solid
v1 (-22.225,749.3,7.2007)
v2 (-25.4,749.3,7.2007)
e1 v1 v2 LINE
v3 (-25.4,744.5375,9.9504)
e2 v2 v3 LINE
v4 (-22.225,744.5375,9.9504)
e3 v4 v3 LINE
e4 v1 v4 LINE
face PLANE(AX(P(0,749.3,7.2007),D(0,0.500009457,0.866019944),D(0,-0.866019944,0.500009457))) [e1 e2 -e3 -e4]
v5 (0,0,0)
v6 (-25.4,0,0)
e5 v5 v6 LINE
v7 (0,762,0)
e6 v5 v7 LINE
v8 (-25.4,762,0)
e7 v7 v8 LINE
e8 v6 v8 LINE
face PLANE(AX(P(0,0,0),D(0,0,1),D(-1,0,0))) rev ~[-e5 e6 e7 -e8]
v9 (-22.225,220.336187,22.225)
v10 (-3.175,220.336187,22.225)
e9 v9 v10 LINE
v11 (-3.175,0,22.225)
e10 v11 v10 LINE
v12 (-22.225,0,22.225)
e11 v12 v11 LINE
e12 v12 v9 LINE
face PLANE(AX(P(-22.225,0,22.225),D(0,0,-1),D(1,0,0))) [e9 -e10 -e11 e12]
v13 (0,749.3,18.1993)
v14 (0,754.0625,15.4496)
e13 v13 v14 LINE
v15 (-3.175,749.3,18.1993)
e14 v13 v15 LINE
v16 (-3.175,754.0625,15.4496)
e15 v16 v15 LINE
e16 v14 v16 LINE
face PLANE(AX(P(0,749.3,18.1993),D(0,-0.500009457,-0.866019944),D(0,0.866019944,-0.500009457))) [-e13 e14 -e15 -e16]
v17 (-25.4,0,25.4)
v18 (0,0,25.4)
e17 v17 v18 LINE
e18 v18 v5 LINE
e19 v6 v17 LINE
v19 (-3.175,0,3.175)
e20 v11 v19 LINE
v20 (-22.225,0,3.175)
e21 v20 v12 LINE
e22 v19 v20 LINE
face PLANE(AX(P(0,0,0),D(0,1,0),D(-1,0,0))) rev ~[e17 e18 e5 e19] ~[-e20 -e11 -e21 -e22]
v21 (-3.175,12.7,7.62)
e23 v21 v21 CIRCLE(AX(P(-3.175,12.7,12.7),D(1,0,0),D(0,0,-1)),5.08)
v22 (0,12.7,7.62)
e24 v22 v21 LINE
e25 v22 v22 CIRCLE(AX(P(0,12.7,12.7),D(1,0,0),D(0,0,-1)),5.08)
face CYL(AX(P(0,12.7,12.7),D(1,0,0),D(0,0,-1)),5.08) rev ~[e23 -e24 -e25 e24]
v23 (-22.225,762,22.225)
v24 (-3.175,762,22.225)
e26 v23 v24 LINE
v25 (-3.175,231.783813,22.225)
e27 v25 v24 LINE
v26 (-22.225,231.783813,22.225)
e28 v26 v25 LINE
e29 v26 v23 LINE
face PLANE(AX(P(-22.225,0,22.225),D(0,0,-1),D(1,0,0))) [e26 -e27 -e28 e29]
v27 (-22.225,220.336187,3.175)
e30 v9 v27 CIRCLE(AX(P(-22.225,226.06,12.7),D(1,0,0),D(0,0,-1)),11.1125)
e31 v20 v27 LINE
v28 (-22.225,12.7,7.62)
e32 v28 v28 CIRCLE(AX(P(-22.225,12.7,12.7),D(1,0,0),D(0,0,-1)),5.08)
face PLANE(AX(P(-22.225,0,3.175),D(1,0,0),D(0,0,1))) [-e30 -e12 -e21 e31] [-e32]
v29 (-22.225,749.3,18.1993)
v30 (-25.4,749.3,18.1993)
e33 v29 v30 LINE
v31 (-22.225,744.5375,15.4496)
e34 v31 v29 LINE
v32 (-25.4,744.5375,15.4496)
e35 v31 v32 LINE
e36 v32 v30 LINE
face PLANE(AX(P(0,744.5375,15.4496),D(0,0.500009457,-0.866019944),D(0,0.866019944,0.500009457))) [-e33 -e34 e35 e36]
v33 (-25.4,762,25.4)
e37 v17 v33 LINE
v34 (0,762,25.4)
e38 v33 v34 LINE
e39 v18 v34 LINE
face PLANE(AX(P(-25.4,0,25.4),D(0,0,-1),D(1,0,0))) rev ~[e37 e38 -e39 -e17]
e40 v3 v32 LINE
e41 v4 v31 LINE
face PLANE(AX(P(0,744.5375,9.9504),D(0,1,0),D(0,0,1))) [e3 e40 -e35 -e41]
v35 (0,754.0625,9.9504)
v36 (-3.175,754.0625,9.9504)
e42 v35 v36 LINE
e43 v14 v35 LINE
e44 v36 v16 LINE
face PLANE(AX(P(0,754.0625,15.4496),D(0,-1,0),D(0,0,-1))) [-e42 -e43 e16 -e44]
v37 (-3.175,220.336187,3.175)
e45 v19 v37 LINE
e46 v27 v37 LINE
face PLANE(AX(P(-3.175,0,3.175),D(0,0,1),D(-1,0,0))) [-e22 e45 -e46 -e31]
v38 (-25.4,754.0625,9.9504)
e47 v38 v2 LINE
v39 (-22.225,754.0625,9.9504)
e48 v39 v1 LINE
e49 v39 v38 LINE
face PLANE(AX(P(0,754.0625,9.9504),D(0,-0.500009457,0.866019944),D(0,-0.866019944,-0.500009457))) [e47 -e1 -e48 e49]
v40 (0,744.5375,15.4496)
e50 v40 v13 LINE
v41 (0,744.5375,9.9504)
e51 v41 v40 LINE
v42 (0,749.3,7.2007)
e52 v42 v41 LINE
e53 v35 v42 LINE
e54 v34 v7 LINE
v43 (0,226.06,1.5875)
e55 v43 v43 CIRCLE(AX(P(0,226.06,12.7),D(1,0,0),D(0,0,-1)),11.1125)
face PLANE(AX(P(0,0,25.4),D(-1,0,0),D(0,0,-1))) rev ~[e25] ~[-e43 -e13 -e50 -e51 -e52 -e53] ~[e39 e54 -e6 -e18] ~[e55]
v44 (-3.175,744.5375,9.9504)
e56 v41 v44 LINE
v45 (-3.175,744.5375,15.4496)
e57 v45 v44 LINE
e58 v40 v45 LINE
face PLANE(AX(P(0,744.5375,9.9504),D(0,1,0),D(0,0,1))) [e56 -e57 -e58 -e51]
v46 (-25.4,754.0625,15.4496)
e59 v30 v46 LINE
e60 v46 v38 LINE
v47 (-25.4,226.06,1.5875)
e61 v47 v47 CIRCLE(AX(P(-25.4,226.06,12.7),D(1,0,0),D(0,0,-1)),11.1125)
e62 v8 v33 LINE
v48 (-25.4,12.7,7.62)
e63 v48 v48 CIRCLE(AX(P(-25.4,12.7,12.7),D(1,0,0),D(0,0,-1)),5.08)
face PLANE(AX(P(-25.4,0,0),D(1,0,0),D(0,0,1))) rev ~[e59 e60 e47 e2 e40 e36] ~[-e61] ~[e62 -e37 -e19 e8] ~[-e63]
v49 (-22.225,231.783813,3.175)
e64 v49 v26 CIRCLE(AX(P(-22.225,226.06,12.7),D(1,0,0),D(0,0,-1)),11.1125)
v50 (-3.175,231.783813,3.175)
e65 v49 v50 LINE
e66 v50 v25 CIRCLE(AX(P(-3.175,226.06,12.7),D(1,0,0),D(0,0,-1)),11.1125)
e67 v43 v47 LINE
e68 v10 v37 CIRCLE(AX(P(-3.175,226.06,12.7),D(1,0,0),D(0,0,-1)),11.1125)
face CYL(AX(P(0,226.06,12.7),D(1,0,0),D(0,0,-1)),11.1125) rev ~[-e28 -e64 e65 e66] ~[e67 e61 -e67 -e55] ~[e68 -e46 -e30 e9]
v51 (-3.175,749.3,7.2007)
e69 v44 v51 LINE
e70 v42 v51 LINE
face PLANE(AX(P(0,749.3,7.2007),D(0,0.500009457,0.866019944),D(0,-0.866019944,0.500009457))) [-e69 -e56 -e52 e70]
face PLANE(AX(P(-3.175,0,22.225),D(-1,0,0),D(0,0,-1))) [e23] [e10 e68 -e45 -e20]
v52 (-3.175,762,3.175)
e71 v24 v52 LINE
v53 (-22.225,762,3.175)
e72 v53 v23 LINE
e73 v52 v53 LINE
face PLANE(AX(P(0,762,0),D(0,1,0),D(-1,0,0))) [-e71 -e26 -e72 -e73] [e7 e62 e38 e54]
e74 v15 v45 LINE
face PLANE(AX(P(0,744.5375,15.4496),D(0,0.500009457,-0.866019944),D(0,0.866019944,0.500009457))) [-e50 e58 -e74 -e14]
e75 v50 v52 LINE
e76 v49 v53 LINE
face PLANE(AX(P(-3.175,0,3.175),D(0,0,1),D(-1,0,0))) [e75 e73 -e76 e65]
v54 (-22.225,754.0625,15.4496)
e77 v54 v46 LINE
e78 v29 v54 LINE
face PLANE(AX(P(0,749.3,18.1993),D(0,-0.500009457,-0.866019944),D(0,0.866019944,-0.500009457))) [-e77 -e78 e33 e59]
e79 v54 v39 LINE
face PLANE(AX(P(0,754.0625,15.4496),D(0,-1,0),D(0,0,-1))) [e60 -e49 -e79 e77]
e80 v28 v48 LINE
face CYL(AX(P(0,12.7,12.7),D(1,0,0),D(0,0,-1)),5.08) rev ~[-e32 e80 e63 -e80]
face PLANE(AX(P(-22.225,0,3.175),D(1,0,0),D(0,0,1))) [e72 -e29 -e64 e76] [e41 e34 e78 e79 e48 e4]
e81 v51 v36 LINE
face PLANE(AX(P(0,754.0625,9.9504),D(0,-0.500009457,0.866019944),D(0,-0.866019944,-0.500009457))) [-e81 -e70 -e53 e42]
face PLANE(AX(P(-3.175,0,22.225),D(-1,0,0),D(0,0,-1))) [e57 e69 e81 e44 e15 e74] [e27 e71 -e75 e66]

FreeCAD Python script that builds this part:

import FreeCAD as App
import Part
import Sketcher

V = App.Vector
Q = App.Units.Quantity

doc = App.newDocument("Part")
params = doc.addObject("Spreadsheet::Sheet", "Params")
for row, (alias, value) in enumerate([
    ("sketch1_width", "1 in"),
    ("pad1_length", "30 in"),
    ("sketch2_diameter", "0.4 in"),
    ("pocket1_length", "1 in"),
    ("pocket2_length", "1 in"),
    ("sketch4_diameter", "0.875 in"),
    ("pocket3_length", "1 in"),
], start=1):
    params.set(f"A{row}", alias)
    params.set(f"B{row}", "=" + value)
    params.setAlias(f"B{row}", alias)

body = doc.addObject("PartDesign::Body", "Body")

# Sketch on XZ plane
sketch1 = body.newObject("Sketcher::SketchObject", "Sketch")
sketch1.AttachmentSupport = (doc.getObject("XZ_Plane"), [""])
sketch1.MapMode = "FlatFace"
sketch1.addGeometry(Part.LineSegment(V(0, 25.4, 0), V(0, 0, 0)), False)
sketch1.addGeometry(Part.LineSegment(V(0, 0, 0), V(-25.4, 0, 0)), False)
sketch1.addGeometry(Part.LineSegment(V(-25.4, 0, 0), V(-25.4, 25.4, 0)), False)
sketch1.addGeometry(Part.LineSegment(V(-25.4, 25.4, 0), V(0, 25.4, 0)), False)
sketch1.addGeometry(Part.LineSegment(V(-22.225, 3.175, 0), V(-3.175, 3.175, 0)), False)
sketch1.addGeometry(Part.LineSegment(V(-3.175, 3.175, 0), V(-3.175, 22.225, 0)), False)
sketch1.addGeometry(Part.LineSegment(V(-3.175, 22.225, 0), V(-22.225, 22.225, 0)), False)
sketch1.addGeometry(Part.LineSegment(V(-22.225, 22.225, 0), V(-22.225, 3.175, 0)), False)
sketch1.addConstraint(Sketcher.Constraint("Coincident", 0, 2, 1, 1))
sketch1.addConstraint(Sketcher.Constraint("Coincident", 1, 2, 2, 1))
sketch1.addConstraint(Sketcher.Constraint("Coincident", 2, 2, 3, 1))
sketch1.addConstraint(Sketcher.Constraint("Coincident", 3, 2, 0, 1))
sketch1.addConstraint(Sketcher.Constraint("Coincident", 4, 2, 5, 1))
sketch1.addConstraint(Sketcher.Constraint("Coincident", 5, 2, 6, 1))
sketch1.addConstraint(Sketcher.Constraint("Coincident", 6, 2, 7, 1))
sketch1.addConstraint(Sketcher.Constraint("Coincident", 7, 2, 4, 1))
sketch1.addConstraint(Sketcher.Constraint("Vertical", 0))
sketch1.addConstraint(Sketcher.Constraint("Horizontal", 1))
sketch1.addConstraint(Sketcher.Constraint("Vertical", 2))
sketch1.addConstraint(Sketcher.Constraint("Horizontal", 3))
sketch1.addConstraint(Sketcher.Constraint("Horizontal", 4))
sketch1.addConstraint(Sketcher.Constraint("Vertical", 5))
sketch1.addConstraint(Sketcher.Constraint("Horizontal", 6))
sketch1.addConstraint(Sketcher.Constraint("Vertical", 7))
sketch1.addConstraint(Sketcher.Constraint("Coincident", 0, 2, -1, 1))
sketch1.addConstraint(Sketcher.Constraint("Equal", 3, 0))
sketch1.addConstraint(Sketcher.Constraint("Equal", 6, 5))
sketch1.addConstraint(Sketcher.Constraint("DistanceX", 1, 2, 1, 1, Q("1 in")))
sketch1.addConstraint(Sketcher.Constraint("DistanceX", 4, 2, -1, 1, Q("0.125 in")))
sketch1.addConstraint(Sketcher.Constraint("DistanceY", -1, 1, 4, 2, Q("0.125 in")))
sketch1.addConstraint(Sketcher.Constraint("DistanceY", 5, 2, 3, 2, Q("0.125 in")))
sketch1.setExpression("Constraints[19]", "Params.sketch1_width")
pad1 = body.newObject("PartDesign::Pad", "Pad")
pad1.Profile = sketch1
pad1.setExpression("Length", "Params.pad1_length")
pad1.Reversed = True

# Sketch on YZ plane
sketch2 = body.newObject("Sketcher::SketchObject", "Sketch001")
sketch2.AttachmentSupport = (doc.getObject("YZ_Plane"), [""])
sketch2.MapMode = "FlatFace"
sketch2.addGeometry(Part.Circle(V(12.7, 12.7, 0), V(0, 0, 1), 5.08), False)
sketch2.addConstraint(Sketcher.Constraint("Diameter", 0, Q("0.4 in")))
sketch2.addConstraint(Sketcher.Constraint("DistanceX", -1, 1, 0, 3, Q("0.5 in")))
sketch2.addConstraint(Sketcher.Constraint("DistanceY", -1, 1, 0, 3, Q("0.5 in")))
sketch2.setExpression("Constraints[0]", "Params.sketch2_diameter")
pocket1 = body.newObject("PartDesign::Pocket", "Pocket")
pocket1.Profile = sketch2
pocket1.setExpression("Length", "Params.pocket1_length")

# Sketch on YZ plane
sketch3 = body.newObject("Sketcher::SketchObject", "Sketch002")
sketch3.AttachmentSupport = (doc.getObject("YZ_Plane"), [""])
sketch3.MapMode = "FlatFace"
sketch3.addGeometry(Part.LineSegment(V(744.5375, 15.4496, 0), V(744.5375, 9.9504, 0)), False)
sketch3.addGeometry(Part.LineSegment(V(744.5375, 9.9504, 0), V(749.3, 7.2007, 0)), False)
sketch3.addGeometry(Part.LineSegment(V(749.3, 7.2007, 0), V(754.0625, 9.9504, 0)), False)
sketch3.addGeometry(Part.LineSegment(V(754.0625, 9.9504, 0), V(754.0625, 15.4496, 0)), False)
sketch3.addGeometry(Part.LineSegment(V(754.0625, 15.4496, 0), V(749.3, 18.1993, 0)), False)
sketch3.addGeometry(Part.LineSegment(V(749.3, 18.1993, 0), V(744.5375, 15.4496, 0)), False)
sketch3.addConstraint(Sketcher.Constraint("Coincident", 0, 2, 1, 1))
sketch3.addConstraint(Sketcher.Constraint("Coincident", 1, 2, 2, 1))
sketch3.addConstraint(Sketcher.Constraint("Coincident", 2, 2, 3, 1))
sketch3.addConstraint(Sketcher.Constraint("Coincident", 3, 2, 4, 1))
sketch3.addConstraint(Sketcher.Constraint("Coincident", 4, 2, 5, 1))
sketch3.addConstraint(Sketcher.Constraint("Coincident", 5, 2, 0, 1))
sketch3.addConstraint(Sketcher.Constraint("Vertical", 0))
sketch3.addConstraint(Sketcher.Constraint("Vertical", 3))
sketch3.addConstraint(Sketcher.Constraint("Parallel", 1, 4))
sketch3.addConstraint(Sketcher.Constraint("Parallel", 2, 5))
sketch3.addConstraint(Sketcher.Constraint("Horizontal", 0, 2, 2, 2))
sketch3.addConstraint(Sketcher.Constraint("Horizontal", 3, 2, 5, 2))
sketch3.addConstraint(Sketcher.Constraint("Vertical", 1, 2, 4, 2))
sketch3.addConstraint(Sketcher.Constraint("Angle", 1, Q("-30.0006 deg")))
sketch3.addConstraint(Sketcher.Constraint("DistanceX", 0, 2, 2, 2, Q("0.375 in")))
sketch3.addConstraint(Sketcher.Constraint("DistanceX", -1, 1, 1, 2, Q("29.5 in")))
sketch3.addConstraint(Sketcher.Constraint("DistanceY", 0, 2, 0, 1, Q("0.2165 in")))
sketch3.addConstraint(Sketcher.Constraint("DistanceY", -1, 1, 1, 2, Q("0.2835 in")))
pocket2 = body.newObject("PartDesign::Pocket", "Pocket001")
pocket2.Profile = sketch3
pocket2.setExpression("Length", "Params.pocket2_length")

# Sketch on YZ plane
sketch4 = body.newObject("Sketcher::SketchObject", "Sketch003")
sketch4.AttachmentSupport = (doc.getObject("YZ_Plane"), [""])
sketch4.MapMode = "FlatFace"
sketch4.addGeometry(Part.Circle(V(226.06, 12.7, 0), V(0, 0, 1), 11.1125), False)
sketch4.addConstraint(Sketcher.Constraint("Diameter", 0, Q("0.875 in")))
sketch4.addConstraint(Sketcher.Constraint("DistanceX", -1, 1, 0, 3, Q("8.9 in")))
sketch4.addConstraint(Sketcher.Constraint("DistanceY", -1, 1, 0, 3, Q("0.5 in")))
sketch4.setExpression("Constraints[0]", "Params.sketch4_diameter")
pocket3 = body.newObject("PartDesign::Pocket", "Pocket002")
pocket3.Profile = sketch4
pocket3.setExpression("Length", "Params.pocket3_length")

doc.recompute()
